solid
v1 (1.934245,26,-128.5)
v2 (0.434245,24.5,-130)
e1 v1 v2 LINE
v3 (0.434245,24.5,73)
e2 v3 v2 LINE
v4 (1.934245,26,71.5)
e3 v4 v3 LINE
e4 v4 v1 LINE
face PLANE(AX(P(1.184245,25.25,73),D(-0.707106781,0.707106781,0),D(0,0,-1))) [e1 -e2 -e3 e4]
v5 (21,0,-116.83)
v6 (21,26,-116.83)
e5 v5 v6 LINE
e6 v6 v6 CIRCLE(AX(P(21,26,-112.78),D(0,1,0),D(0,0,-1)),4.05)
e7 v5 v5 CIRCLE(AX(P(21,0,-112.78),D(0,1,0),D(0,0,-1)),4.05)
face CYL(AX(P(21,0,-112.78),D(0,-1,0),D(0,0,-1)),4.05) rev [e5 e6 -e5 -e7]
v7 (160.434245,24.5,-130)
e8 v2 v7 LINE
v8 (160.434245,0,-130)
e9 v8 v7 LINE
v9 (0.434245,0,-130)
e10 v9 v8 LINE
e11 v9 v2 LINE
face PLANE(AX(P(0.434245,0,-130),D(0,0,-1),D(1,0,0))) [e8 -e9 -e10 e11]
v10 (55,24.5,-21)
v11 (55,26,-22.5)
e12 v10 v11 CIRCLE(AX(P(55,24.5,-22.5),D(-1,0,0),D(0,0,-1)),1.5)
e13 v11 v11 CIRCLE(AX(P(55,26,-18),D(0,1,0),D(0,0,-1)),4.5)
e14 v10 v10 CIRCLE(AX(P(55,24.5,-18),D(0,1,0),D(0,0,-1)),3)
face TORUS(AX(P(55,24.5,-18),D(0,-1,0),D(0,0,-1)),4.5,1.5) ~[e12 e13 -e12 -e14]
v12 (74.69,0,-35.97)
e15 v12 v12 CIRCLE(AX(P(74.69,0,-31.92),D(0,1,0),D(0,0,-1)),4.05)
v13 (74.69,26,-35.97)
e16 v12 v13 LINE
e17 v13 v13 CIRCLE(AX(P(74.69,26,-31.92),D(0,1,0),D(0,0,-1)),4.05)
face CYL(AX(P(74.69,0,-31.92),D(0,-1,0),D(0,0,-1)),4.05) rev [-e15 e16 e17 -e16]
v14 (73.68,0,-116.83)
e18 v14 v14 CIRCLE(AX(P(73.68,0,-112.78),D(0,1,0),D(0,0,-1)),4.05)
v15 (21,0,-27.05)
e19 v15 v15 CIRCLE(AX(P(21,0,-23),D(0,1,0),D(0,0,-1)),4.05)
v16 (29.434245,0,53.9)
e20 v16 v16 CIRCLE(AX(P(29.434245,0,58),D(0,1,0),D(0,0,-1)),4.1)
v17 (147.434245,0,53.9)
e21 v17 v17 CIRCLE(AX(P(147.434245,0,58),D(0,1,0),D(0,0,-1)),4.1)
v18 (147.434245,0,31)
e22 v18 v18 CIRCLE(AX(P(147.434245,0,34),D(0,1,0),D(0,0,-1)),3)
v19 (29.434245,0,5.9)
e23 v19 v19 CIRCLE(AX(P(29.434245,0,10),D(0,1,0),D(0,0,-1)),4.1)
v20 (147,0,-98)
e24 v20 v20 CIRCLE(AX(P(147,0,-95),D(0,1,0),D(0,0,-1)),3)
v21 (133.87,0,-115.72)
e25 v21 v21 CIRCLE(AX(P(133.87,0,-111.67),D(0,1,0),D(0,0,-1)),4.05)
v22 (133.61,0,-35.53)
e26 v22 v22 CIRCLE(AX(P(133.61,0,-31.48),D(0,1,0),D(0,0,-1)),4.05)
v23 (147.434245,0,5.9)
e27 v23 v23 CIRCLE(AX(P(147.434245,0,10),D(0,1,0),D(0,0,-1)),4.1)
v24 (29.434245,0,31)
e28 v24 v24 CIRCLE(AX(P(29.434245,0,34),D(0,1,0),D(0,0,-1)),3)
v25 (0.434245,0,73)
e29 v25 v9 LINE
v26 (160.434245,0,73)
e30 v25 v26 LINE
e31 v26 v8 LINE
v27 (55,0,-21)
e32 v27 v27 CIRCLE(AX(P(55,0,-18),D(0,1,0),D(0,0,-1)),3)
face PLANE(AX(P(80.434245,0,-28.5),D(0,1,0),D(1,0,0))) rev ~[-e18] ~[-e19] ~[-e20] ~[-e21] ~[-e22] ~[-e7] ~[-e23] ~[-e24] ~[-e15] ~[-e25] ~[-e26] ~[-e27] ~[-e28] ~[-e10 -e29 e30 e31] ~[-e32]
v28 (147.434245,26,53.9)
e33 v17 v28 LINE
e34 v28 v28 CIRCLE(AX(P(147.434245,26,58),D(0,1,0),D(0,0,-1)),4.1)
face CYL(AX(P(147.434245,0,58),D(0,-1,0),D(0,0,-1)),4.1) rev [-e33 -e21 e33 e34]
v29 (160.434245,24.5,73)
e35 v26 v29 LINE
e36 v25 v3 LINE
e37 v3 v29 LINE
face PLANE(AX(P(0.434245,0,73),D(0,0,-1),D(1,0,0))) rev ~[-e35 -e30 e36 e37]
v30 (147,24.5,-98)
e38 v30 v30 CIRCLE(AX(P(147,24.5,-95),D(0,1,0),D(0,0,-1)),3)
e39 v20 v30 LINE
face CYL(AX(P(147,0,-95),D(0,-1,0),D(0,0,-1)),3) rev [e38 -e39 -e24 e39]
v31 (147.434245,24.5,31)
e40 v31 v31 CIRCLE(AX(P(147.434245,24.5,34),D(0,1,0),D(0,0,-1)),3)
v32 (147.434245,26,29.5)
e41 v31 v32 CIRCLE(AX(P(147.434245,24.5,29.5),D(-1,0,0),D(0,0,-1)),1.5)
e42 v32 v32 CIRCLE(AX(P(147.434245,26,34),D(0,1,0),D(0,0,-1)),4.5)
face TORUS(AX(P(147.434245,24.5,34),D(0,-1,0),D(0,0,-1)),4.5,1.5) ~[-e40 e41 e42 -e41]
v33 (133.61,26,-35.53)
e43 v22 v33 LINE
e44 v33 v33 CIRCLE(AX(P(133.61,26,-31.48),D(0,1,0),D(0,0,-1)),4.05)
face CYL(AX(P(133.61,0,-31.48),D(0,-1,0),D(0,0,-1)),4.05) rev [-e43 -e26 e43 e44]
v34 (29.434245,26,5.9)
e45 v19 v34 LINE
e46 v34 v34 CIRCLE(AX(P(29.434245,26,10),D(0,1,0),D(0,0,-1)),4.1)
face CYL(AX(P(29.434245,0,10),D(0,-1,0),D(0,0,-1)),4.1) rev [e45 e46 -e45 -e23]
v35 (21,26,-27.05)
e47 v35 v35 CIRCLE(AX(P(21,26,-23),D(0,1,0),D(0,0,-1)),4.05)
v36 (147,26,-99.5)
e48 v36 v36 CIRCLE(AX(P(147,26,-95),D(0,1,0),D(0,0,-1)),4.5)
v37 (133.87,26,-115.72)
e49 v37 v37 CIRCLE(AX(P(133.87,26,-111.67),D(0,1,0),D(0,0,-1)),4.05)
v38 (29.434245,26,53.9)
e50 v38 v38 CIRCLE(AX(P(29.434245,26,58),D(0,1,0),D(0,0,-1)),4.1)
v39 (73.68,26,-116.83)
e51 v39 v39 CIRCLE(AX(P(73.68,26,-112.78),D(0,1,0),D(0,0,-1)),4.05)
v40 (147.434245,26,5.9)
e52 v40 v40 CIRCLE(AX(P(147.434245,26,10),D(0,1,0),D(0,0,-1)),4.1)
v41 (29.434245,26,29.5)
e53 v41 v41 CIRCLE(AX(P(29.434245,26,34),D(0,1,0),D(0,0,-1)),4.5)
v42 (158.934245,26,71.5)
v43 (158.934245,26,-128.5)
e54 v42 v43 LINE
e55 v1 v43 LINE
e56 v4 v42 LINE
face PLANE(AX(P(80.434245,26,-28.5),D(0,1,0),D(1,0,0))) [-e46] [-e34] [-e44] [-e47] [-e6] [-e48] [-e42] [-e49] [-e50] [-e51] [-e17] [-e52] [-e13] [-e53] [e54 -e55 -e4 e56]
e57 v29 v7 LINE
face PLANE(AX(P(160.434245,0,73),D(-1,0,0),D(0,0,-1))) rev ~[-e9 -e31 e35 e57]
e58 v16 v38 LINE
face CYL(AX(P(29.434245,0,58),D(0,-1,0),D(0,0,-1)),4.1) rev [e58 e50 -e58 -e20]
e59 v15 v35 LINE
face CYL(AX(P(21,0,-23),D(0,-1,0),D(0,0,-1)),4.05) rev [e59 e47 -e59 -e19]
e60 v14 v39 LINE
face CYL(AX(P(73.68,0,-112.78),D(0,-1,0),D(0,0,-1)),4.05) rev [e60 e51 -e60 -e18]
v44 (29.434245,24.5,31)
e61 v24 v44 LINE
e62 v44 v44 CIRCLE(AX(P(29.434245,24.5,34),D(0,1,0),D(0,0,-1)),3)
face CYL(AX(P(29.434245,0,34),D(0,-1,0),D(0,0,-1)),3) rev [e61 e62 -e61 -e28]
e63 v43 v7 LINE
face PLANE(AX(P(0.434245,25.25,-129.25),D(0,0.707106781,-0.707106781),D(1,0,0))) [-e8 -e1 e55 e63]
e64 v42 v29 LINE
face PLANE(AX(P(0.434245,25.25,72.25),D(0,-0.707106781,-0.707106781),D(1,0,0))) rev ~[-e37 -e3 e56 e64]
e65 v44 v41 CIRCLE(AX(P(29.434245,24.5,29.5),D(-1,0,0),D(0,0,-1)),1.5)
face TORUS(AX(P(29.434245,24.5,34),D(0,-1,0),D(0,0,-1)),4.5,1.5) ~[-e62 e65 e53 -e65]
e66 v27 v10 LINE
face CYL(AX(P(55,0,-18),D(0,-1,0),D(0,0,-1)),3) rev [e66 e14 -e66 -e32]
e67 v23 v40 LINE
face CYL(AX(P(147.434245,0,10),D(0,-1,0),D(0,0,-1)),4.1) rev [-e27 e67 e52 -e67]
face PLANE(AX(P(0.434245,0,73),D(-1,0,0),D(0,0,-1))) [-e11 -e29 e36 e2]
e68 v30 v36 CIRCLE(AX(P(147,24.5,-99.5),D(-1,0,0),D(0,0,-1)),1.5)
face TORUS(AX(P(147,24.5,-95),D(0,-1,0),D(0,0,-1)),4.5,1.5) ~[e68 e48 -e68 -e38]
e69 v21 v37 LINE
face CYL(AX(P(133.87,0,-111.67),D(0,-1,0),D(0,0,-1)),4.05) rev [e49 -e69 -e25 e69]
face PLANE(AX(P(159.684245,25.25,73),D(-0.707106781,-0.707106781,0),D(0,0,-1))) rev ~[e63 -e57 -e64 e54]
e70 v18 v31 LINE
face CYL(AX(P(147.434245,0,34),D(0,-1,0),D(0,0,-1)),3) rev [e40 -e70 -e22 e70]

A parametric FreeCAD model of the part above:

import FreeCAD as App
import Part
import Sketcher
from FreeCAD import Vector
Q = App.Units.Quantity


def edges_at(feature, points):
    """Names of the edges that pass closest to the given points."""
    edges = feature.Shape.Edges
    near = lambda p: min(range(len(edges)), key=lambda i: edges[i].distToShape(Part.Vertex(*p))[0])
    return sorted({f"Edge{near(p) + 1}" for p in points})

doc = App.newDocument("Part")
params = doc.addObject("Spreadsheet::Sheet", "Params")
for row, (alias, value) in enumerate([
    ("sketch1_diameter", "6 mm"),
    ("sketch1_diameter2", "8.2 mm"),
    ("sketch1_diameter3", "8.1 mm"),
    ("sketch1_width", "160 mm"),
    ("sketch1_height", "203 mm"),
    ("pad1_length", "26 mm"),
    ("fillet_radius", "1.5 mm"),
    ("chamfer_size", "1.5 mm"),
], start=1):
    params.set(f"A{row}", alias)
    params.set(f"B{row}", "=" + value)
    params.setAlias(f"B{row}", alias)

body = doc.addObject("PartDesign::Body", "Body")

# Sketch on XZ plane
sketch1 = body.newObject("Sketcher::SketchObject", "Sketch")
sketch1.AttachmentSupport = (doc.getObject("XZ_Plane"), [""])
sketch1.MapMode = "FlatFace"
sketch1.addGeometry([
    Part.LineSegment(Vector(0.4, -130, 0), Vector(0.4, 73, 0)),  # 0
    Part.LineSegment(Vector(0.4, 73, 0), Vector(160.4, 73, 0)),  # 1
    Part.LineSegment(Vector(160.4, 73, 0), Vector(160.4, -130, 0)),  # 2
    Part.LineSegment(Vector(160.4, -130, 0), Vector(0.4, -130, 0)),  # 3
    Part.Circle(Vector(29.4, 58, 0), Vector(0, 0, 1), 4.1),  # 4
    Part.Circle(Vector(29.4, 34, 0), Vector(0, 0, 1), 3),  # 5
    Part.Circle(Vector(29.4, 10, 0), Vector(0, 0, 1), 4.1),  # 6
    Part.Circle(Vector(21, -23, 0), Vector(0, 0, 1), 4),  # 7
    Part.Circle(Vector(55, -18, 0), Vector(0, 0, 1), 3),  # 8
    Part.Circle(Vector(147.4, 58, 0), Vector(0, 0, 1), 4.1),  # 9
    Part.Circle(Vector(147.4, 34, 0), Vector(0, 0, 1), 3),  # 10
    Part.Circle(Vector(147.4, 10, 0), Vector(0, 0, 1), 4.1),  # 11
    Part.Circle(Vector(74.7, -31.9, 0), Vector(0, 0, 1), 4),  # 12
    Part.Circle(Vector(21, -112.8, 0), Vector(0, 0, 1), 4),  # 13
    Part.Circle(Vector(73.7, -112.8, 0), Vector(0, 0, 1), 4),  # 14
    Part.Circle(Vector(133.6, -31.5, 0), Vector(0, 0, 1), 4),  # 15
    Part.Circle(Vector(133.9, -111.7, 0), Vector(0, 0, 1), 4),  # 16
    Part.Circle(Vector(147, -95, 0), Vector(0, 0, 1), 3),  # 17
], False)
sketch1.addConstraint([
    Sketcher.Constraint("Coincident", 0, 2, 1, 1),
    Sketcher.Constraint("Coincident", 1, 2, 2, 1),
    Sketcher.Constraint("Coincident", 2, 2, 3, 1),
    Sketcher.Constraint("Coincident", 3, 2, 0, 1),
    Sketcher.Constraint("Vertical", 0),
    Sketcher.Constraint("Horizontal", 1),
    Sketcher.Constraint("Vertical", 2),
    Sketcher.Constraint("Horizontal", 3),
    Sketcher.Constraint("Equal", 4, 6),
    Sketcher.Constraint("Equal", 5, 8),
    Sketcher.Constraint("Equal", 6, 9),
    Sketcher.Constraint("Equal", 8, 10),
    Sketcher.Constraint("Equal", 9, 11),
    Sketcher.Constraint("Equal", 7, 12),
    Sketcher.Constraint("Equal", 12, 13),
    Sketcher.Constraint("Equal", 13, 14),
    Sketcher.Constraint("Equal", 14, 15),
    Sketcher.Constraint("Equal", 15, 16),
    Sketcher.Constraint("Equal", 10, 17),
    Sketcher.Constraint("Horizontal", 4, 3, 9, 3),
    Sketcher.Constraint("Horizontal", 5, 3, 10, 3),
    Sketcher.Constraint("Horizontal", 6, 3, 11, 3),
    Sketcher.Constraint("Horizontal", 13, 3, 14, 3),
    Sketcher.Constraint("Vertical", 4, 3, 5, 3),
    Sketcher.Constraint("Vertical", 5, 3, 6, 3),
    Sketcher.Constraint("Vertical", 9, 3, 10, 3),
    Sketcher.Constraint("Vertical", 10, 3, 11, 3),
    Sketcher.Constraint("Vertical", 7, 3, 13, 3),
    Sketcher.Constraint("Diameter", 5, Q("6 mm")),
    Sketcher.Constraint("Diameter", 4, Q("8.2 mm")),
    Sketcher.Constraint("Diameter", 7, Q("8.1 mm")),
    Sketcher.Constraint("DistanceX", 1, 1, 1, 2, Q("160 mm")),
    Sketcher.Constraint("DistanceY", 0, 1, 0, 2, Q("203 mm")),
    Sketcher.Constraint("DistanceY", -1, 1, 4, 3, Q("58 mm")),
    Sketcher.Constraint("DistanceY", -1, 1, 5, 3, Q("34 mm")),
    Sketcher.Constraint("DistanceY", -1, 1, 6, 3, Q("10 mm")),
    Sketcher.Constraint("DistanceX", -1, 1, 7, 3, Q("21 mm")),
    Sketcher.Constraint("DistanceY", 7, 3, -1, 1, Q("23 mm")),
    Sketcher.Constraint("DistanceX", -1, 1, 8, 3, Q("55 mm")),
    Sketcher.Constraint("DistanceY", 8, 3, -1, 1, Q("18 mm")),
    Sketcher.Constraint("DistanceX", -1, 1, 17, 3, Q("147 mm")),
    Sketcher.Constraint("DistanceY", 17, 3, -1, 1, Q("95 mm")),
    Sketcher.Constraint("DistanceY", -1, 1, 0, 2, Q("73 mm")),
    Sketcher.Constraint("DistanceX", 4, 3, 9, 3, Q("118 mm")),
    Sketcher.Constraint("DistanceX", 0, 2, 4, 3, Q("29 mm")),
    Sketcher.Constraint("DistanceX", -1, 1, 12, 3, Q("74.69 mm")),
    Sketcher.Constraint("DistanceY", 12, 3, -1, 1, Q("31.92 mm")),
    Sketcher.Constraint("DistanceY", 13, 3, -1, 1, Q("112.78 mm")),
    Sketcher.Constraint("DistanceX", -1, 1, 14, 3, Q("73.68 mm")),
    Sketcher.Constraint("DistanceX", -1, 1, 15, 3, Q("133.61 mm")),
    Sketcher.Constraint("DistanceY", 15, 3, -1, 1, Q("31.48 mm")),
    Sketcher.Constraint("DistanceX", -1, 1, 16, 3, Q("133.87 mm")),
    Sketcher.Constraint("DistanceY", 16, 3, -1, 1, Q("111.67 mm")),
    Sketcher.Constraint("DistanceX", -1, 1, 4, 3, Q("29.434245 mm")),
])
sketch1.setExpression("Constraints[28]", "Params.sketch1_diameter")
sketch1.setExpression("Constraints[29]", "Params.sketch1_diameter2")
sketch1.setExpression("Constraints[30]", "Params.sketch1_diameter3")
sketch1.setExpression("Constraints[31]", "Params.sketch1_width")
sketch1.setExpression("Constraints[32]", "Params.sketch1_height")
pad1 = body.newObject("PartDesign::Pad", "Pad")
pad1.Profile = sketch1
pad1.setExpression("Length", "Params.pad1_length")
pad1.Reversed = True
doc.recompute()

fillet = body.newObject("PartDesign::Fillet", "Fillet")
fillet.Base = (pad1, edges_at(pad1, [
    (29.434, 26, 37),
    (147.434, 26, 37),
    (147, 26, -92),
    (55, 26, -15),
]))
fillet.setExpression("Radius", "Params.fillet_radius")
doc.recompute()

chamfer = body.newObject("PartDesign::Chamfer", "Chamfer")
chamfer.Base = (fillet, edges_at(fillet, [
    (0.434, 26, -28.5),
    (80.434, 26, 73),
    (160.434, 26, -28.5),
    (80.434, 26, -130),
]))
chamfer.setExpression("Size", "Params.chamfer_size")

doc.recompute()
